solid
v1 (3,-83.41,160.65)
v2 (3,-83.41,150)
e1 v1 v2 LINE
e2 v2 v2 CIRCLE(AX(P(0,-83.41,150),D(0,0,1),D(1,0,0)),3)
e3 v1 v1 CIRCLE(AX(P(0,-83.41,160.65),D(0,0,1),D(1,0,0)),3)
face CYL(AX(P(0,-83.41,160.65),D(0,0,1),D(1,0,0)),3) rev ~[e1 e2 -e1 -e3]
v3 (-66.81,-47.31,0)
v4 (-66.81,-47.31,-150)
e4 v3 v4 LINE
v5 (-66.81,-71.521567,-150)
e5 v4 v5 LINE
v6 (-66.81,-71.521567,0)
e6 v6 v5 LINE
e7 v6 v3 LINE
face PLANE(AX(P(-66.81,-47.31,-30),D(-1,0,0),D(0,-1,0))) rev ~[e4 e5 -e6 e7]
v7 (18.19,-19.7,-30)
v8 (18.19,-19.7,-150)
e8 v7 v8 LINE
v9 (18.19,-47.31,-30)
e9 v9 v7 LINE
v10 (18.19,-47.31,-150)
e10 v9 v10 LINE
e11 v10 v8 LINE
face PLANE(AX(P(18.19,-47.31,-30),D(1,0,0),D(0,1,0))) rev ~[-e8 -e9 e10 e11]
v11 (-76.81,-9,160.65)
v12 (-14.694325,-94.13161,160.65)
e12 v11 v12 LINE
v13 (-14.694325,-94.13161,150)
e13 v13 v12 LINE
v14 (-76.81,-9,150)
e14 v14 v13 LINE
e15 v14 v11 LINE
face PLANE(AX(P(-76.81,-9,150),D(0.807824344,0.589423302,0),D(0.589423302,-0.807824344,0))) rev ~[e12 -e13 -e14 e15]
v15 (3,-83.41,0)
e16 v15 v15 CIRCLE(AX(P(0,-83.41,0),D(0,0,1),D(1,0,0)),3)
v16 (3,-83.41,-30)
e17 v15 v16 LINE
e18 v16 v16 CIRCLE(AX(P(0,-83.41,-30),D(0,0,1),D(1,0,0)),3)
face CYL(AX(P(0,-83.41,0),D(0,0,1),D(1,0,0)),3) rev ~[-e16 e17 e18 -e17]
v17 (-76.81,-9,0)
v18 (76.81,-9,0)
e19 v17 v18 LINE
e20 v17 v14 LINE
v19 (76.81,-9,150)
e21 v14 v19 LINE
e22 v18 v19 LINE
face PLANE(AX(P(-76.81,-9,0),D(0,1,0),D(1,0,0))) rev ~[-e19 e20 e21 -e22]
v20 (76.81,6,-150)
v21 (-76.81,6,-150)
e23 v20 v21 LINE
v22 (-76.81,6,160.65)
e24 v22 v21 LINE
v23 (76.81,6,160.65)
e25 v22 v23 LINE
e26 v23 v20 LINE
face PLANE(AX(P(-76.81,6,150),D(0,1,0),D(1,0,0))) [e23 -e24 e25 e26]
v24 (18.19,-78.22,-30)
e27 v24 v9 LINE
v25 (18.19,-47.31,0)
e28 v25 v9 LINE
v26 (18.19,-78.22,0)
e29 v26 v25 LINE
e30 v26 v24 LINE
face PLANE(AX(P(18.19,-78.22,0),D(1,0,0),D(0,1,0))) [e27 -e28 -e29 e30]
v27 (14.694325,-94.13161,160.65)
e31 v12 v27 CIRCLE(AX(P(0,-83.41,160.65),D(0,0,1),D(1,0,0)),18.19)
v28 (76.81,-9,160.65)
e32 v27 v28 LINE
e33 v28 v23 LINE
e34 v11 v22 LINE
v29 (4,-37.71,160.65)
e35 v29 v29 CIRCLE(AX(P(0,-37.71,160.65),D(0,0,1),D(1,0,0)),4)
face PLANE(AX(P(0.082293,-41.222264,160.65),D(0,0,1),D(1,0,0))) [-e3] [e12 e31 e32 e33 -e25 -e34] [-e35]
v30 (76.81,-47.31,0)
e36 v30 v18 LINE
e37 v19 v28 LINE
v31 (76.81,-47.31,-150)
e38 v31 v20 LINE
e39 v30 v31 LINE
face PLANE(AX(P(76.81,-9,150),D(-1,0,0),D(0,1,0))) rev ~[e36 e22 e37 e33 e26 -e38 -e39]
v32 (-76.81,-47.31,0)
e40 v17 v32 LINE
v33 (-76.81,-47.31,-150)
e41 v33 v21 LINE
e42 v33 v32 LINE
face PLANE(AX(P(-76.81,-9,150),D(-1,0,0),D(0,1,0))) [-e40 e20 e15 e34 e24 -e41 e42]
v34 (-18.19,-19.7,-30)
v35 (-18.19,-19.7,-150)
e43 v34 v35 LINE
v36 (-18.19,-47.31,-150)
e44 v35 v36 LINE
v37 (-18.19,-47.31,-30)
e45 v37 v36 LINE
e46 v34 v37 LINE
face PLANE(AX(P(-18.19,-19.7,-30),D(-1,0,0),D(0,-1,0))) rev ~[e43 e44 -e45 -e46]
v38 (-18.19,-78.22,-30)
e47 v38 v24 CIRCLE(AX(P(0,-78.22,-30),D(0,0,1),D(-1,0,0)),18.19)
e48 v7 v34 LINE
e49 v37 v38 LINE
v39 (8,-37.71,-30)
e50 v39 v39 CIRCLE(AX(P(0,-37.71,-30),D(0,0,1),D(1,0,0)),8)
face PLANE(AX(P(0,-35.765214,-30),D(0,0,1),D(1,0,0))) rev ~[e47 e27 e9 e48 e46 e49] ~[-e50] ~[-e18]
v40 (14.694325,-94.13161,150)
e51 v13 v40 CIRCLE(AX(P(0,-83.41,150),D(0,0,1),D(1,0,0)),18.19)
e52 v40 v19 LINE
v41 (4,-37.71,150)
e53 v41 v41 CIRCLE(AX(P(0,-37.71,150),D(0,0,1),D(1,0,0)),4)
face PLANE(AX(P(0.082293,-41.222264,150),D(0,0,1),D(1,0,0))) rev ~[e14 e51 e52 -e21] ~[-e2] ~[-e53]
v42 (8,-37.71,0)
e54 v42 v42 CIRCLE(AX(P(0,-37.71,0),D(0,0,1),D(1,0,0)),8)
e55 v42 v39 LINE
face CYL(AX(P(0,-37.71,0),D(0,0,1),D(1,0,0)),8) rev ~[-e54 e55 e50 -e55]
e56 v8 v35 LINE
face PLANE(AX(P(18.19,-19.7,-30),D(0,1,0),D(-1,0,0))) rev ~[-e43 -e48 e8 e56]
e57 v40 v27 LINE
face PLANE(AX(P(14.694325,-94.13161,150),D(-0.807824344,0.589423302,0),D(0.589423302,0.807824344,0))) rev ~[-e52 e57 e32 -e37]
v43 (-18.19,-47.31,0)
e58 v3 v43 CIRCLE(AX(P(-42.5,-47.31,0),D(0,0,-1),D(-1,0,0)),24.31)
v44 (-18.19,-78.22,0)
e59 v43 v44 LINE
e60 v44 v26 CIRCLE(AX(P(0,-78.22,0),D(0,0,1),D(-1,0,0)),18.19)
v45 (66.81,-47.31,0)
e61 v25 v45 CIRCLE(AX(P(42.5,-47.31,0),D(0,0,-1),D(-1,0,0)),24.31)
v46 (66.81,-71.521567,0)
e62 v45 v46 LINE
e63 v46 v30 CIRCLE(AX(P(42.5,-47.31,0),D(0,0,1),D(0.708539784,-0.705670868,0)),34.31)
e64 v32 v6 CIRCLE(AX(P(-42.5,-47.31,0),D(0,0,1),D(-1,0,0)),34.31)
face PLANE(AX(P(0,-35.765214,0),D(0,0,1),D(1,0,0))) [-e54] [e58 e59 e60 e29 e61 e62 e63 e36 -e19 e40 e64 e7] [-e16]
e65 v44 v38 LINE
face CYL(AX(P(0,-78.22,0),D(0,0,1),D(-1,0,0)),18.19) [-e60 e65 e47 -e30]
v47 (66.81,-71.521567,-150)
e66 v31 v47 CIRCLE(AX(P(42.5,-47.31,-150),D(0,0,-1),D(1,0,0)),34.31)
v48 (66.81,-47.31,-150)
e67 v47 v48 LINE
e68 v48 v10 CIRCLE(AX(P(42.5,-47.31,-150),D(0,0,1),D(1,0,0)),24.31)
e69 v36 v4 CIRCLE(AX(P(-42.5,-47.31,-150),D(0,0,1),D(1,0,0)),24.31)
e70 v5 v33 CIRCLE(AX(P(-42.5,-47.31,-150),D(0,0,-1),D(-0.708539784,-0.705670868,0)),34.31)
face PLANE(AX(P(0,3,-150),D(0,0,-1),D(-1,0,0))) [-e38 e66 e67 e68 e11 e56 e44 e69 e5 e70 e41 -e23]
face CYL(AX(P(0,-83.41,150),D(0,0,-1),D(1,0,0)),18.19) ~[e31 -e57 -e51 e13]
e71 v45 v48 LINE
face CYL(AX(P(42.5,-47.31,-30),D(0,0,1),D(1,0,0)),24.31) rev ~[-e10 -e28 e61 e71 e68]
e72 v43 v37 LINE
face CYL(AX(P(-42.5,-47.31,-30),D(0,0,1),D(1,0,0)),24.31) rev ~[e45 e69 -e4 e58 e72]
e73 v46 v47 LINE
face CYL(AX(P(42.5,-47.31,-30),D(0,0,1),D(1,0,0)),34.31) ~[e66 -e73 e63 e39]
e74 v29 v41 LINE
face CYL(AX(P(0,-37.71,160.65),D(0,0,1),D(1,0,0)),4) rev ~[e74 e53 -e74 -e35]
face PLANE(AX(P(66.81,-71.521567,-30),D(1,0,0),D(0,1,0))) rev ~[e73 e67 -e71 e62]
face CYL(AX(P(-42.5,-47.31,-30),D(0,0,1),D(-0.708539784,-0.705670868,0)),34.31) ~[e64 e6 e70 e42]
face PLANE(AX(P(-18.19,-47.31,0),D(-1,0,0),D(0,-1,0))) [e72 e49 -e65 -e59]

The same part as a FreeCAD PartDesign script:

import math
import FreeCAD as App
import Part
import Sketcher

V = App.Vector
Q = App.Units.Quantity

doc = App.newDocument("Part")
body = doc.addObject("PartDesign::Body", "Body")

# Sketch on XY plane
sketch1 = body.newObject("Sketcher::SketchObject", "Sketch")
sketch1.AttachmentSupport = (doc.getObject("XY_Plane"), [""])
sketch1.MapMode = "FlatFace"
sketch1.addGeometry([
    Part.LineSegment(V(-18.2, -47.3, 0), V(-18.2, -78.2, 0)),  # 0
    Part.ArcOfCircle(Part.Circle(V(0, -78.2, 0), V(0, 0, 1), 18.2), math.radians(180), math.radians(360)),  # 1
    Part.LineSegment(V(18.2, -78.2, 0), V(18.2, -47.3, 0)),  # 2
    Part.ArcOfCircle(Part.Circle(V(42.5, -47.3, 0), V(0, 0, 1), 24.3), math.radians(0), math.radians(180)),  # 3
    Part.LineSegment(V(66.8, -47.3, 0), V(66.8, -71.5, 0)),  # 4
    Part.ArcOfCircle(Part.Circle(V(42.5, -47.3, 0), V(0, 0, 1), 34.3), math.radians(-45), math.radians(0)),  # 5
    Part.LineSegment(V(76.8, -47.3, 0), V(76.8, 0, 0)),  # 6
    Part.LineSegment(V(76.8, 0, 0), V(-76.8, 0, 0)),  # 7
    Part.LineSegment(V(-76.8, 0, 0), V(-76.8, -47.3, 0)),  # 8
    Part.ArcOfCircle(Part.Circle(V(-42.5, -47.3, 0), V(0, 0, 1), 34.3), math.radians(180), math.radians(225)),  # 9
    Part.LineSegment(V(-66.8, -71.5, 0), V(-66.8, -47.3, 0)),  # 10
    Part.ArcOfCircle(Part.Circle(V(-42.5, -47.3, 0), V(0, 0, 1), 24.3), math.radians(0), math.radians(180)),  # 11
    Part.Circle(V(0, -83.4, 0), V(0, 0, 1), 3),  # 12
    Part.Circle(V(0, -37.7, 0), V(0, 0, 1), 8),  # 13
], False)
sketch1.addConstraint([
    Sketcher.Constraint("Tangent", 0, 2, 1, 1),
    Sketcher.Constraint("Tangent", 1, 2, 2, 1),
    Sketcher.Constraint("Tangent", 2, 2, 3, 2),
    Sketcher.Constraint("Tangent", 3, 1, 4, 1),
    Sketcher.Constraint("Coincident", 4, 2, 5, 1),
    Sketcher.Constraint("Tangent", 5, 2, 6, 1),
    Sketcher.Constraint("Coincident", 6, 2, 7, 1),
    Sketcher.Constraint("Coincident", 7, 2, 8, 1),
    Sketcher.Constraint("Tangent", 8, 2, 9, 1),
    Sketcher.Constraint("Coincident", 9, 2, 10, 1),
    Sketcher.Constraint("Tangent", 10, 2, 11, 2),
    Sketcher.Constraint("Tangent", 11, 1, 0, 1),
    Sketcher.Constraint("Vertical", 0),
    Sketcher.Constraint("Vertical", 2),
    Sketcher.Constraint("Vertical", 4),
    Sketcher.Constraint("Vertical", 6),
    Sketcher.Constraint("Horizontal", 7),
    Sketcher.Constraint("Vertical", 8),
    Sketcher.Constraint("Vertical", 10),
    Sketcher.Constraint("Coincident", 5, 3, 3, 3),
    Sketcher.Constraint("Coincident", 11, 3, 9, 3),
    Sketcher.Constraint("Equal", 5, 9),
    Sketcher.Constraint("Equal", 3, 11),
    Sketcher.Constraint("Symmetric", 6, 2, 7, 2, -1, 1),
    Sketcher.Constraint("PointOnObject", 12, 3, -2),
    Sketcher.Constraint("PointOnObject", 13, 3, -2),
    Sketcher.Constraint("Horizontal", 5, 3, 9, 3),
    Sketcher.Constraint("Diameter", 12, Q("6 mm")),
    Sketcher.Constraint("Diameter", 13, Q("16 mm")),
    Sketcher.Constraint("Radius", 1, Q("18.19 mm")),
    Sketcher.Constraint("Radius", 3, Q("24.31 mm")),
    Sketcher.Constraint("Radius", 5, Q("34.31 mm")),
    Sketcher.Constraint("DistanceY", 0, 2, 0, 1, Q("30.91 mm")),
    Sketcher.Constraint("DistanceY", 6, 1, 6, 2, Q("47.31 mm")),
    Sketcher.Constraint("DistanceY", 12, 3, 3, 3, Q("36.1 mm")),
    Sketcher.Constraint("DistanceY", 3, 3, 13, 3, Q("9.6 mm")),
])
pad1 = body.newObject("PartDesign::Pad", "Pad")
pad1.Profile = sketch1
pad1.Length = 30
pad1.Reversed = True

# Sketch on XY plane
sketch2 = body.newObject("Sketcher::SketchObject", "Sketch001")
sketch2.AttachmentSupport = (doc.getObject("XY_Plane"), [""])
sketch2.MapMode = "FlatFace"
sketch2.AttachmentOffset = App.Placement(V(0, 0, -30), App.Rotation())
sketch2.addGeometry([
    Part.LineSegment(V(77, 0, 0), V(77, -47, 0)),  # 0
    Part.ArcOfCircle(Part.Circle(V(43, -47, 0), V(0, 0, 1), 34), math.radians(-45), math.radians(0)),  # 1
    Part.LineSegment(V(67, -72, 0), V(67, -47, 0)),  # 2
    Part.ArcOfCircle(Part.Circle(V(42, -47, 0), V(0, 0, 1), 24), math.radians(0), math.radians(180)),  # 3
    Part.LineSegment(V(18, -47, 0), V(18, -20, 0)),  # 4
    Part.LineSegment(V(18, -20, 0), V(-18, -20, 0)),  # 5
    Part.LineSegment(V(-18, -20, 0), V(-18, -47, 0)),  # 6
    Part.ArcOfCircle(Part.Circle(V(-42, -47, 0), V(0, 0, 1), 24), math.radians(0), math.radians(180)),  # 7
    Part.LineSegment(V(-67, -47, 0), V(-67, -72, 0)),  # 8
    Part.ArcOfCircle(Part.Circle(V(-43, -47, 0), V(0, 0, 1), 34), math.radians(180), math.radians(225)),  # 9
    Part.LineSegment(V(-77, -47, 0), V(-77, 0, 0)),  # 10
    Part.LineSegment(V(-77, 0, 0), V(77, 0, 0)),  # 11
], False)
sketch2.addConstraint([
    Sketcher.Constraint("Tangent", 0, 2, 1, 2),
    Sketcher.Constraint("Coincident", 1, 1, 2, 1),
    Sketcher.Constraint("Tangent", 2, 2, 3, 1),
    Sketcher.Constraint("Tangent", 3, 2, 4, 1),
    Sketcher.Constraint("Coincident", 4, 2, 5, 1),
    Sketcher.Constraint("Coincident", 5, 2, 6, 1),
    Sketcher.Constraint("Tangent", 6, 2, 7, 1),
    Sketcher.Constraint("Tangent", 7, 2, 8, 1),
    Sketcher.Constraint("Coincident", 8, 2, 9, 2),
    Sketcher.Constraint("Tangent", 9, 1, 10, 1),
    Sketcher.Constraint("Coincident", 10, 2, 11, 1),
    Sketcher.Constraint("Coincident", 11, 2, 0, 1),
    Sketcher.Constraint("Vertical", 0),
    Sketcher.Constraint("Vertical", 2),
    Sketcher.Constraint("Vertical", 4),
    Sketcher.Constraint("Horizontal", 5),
    Sketcher.Constraint("Vertical", 6),
    Sketcher.Constraint("Vertical", 8),
    Sketcher.Constraint("Vertical", 10),
    Sketcher.Constraint("Horizontal", 11),
    Sketcher.Constraint("Coincident", 3, 3, 1, 3),
    Sketcher.Constraint("Coincident", 9, 3, 7, 3),
    Sketcher.Constraint("Equal", 3, 7),
    Sketcher.Constraint("Equal", 1, 9),
    Sketcher.Constraint("Symmetric", 10, 2, 11, 2, -1, 1),
    Sketcher.Constraint("Horizontal", 3, 3, 7, 3),
    Sketcher.Constraint("Radius", 1, Q("34.31 mm")),
    Sketcher.Constraint("Radius", 3, Q("24.31 mm")),
    Sketcher.Constraint("DistanceX", 7, 3, 3, 3, Q("85 mm")),
    Sketcher.Constraint("DistanceY", 0, 2, 0, 1, Q("47.31 mm")),
    Sketcher.Constraint("DistanceY", 4, 1, 4, 2, Q("27.61 mm")),
])
pad2 = body.newObject("PartDesign::Pad", "Pad001")
pad2.Profile = sketch2
pad2.Length = 120
pad2.Reversed = True

# Sketch on XY plane
sketch3 = body.newObject("Sketcher::SketchObject", "Sketch002")
sketch3.AttachmentSupport = (doc.getObject("XY_Plane"), [""])
sketch3.MapMode = "FlatFace"
sketch3.addGeometry([
    Part.LineSegment(V(-77, -9, 0), V(77, -9, 0)),
    Part.LineSegment(V(77, -9, 0), V(77, 6, 0)),
    Part.LineSegment(V(77, 6, 0), V(-77, 6, 0)),
    Part.LineSegment(V(-77, 6, 0), V(-77, -9, 0)),
], False)
sketch3.addConstraint([
    Sketcher.Constraint("Coincident", 0, 2, 1, 1),
    Sketcher.Constraint("Coincident", 1, 2, 2, 1),
    Sketcher.Constraint("Coincident", 2, 2, 3, 1),
    Sketcher.Constraint("Coincident", 3, 2, 0, 1),
    Sketcher.Constraint("Horizontal", 0),
    Sketcher.Constraint("Vertical", 1),
    Sketcher.Constraint("Horizontal", 2),
    Sketcher.Constraint("Vertical", 3),
    Sketcher.Constraint("DistanceY", 1, 1, 1, 2, Q("15 mm")),
    Sketcher.Constraint("DistanceY", 0, 2, -1, 1, Q("9 mm")),
    Sketcher.Constraint("DistanceX", 0, 1, 0, 2, Q("153.62 mm")),
    Sketcher.Constraint("DistanceX", -1, 1, 0, 2, Q("76.81 mm")),
])
pad3 = body.newObject("PartDesign::Pad", "Pad002")
pad3.Profile = sketch3
pad3.Length = 150

# Sketch on XY plane
sketch4 = body.newObject("Sketcher::SketchObject", "Sketch003")
sketch4.AttachmentSupport = (doc.getObject("XY_Plane"), [""])
sketch4.MapMode = "FlatFace"
sketch4.addGeometry([
    Part.LineSegment(V(77, 6, 0), V(77, 0, 0)),
    Part.LineSegment(V(77, 0, 0), V(-77, 0, 0)),
    Part.LineSegment(V(-77, 0, 0), V(-77, 6, 0)),
    Part.LineSegment(V(-77, 6, 0), V(77, 6, 0)),
], False)
sketch4.addConstraint([
    Sketcher.Constraint("Coincident", 0, 2, 1, 1),
    Sketcher.Constraint("Coincident", 1, 2, 2, 1),
    Sketcher.Constraint("Coincident", 2, 2, 3, 1),
    Sketcher.Constraint("Coincident", 3, 2, 0, 1),
    Sketcher.Constraint("Vertical", 0),
    Sketcher.Constraint("Horizontal", 1),
    Sketcher.Constraint("Vertical", 2),
    Sketcher.Constraint("Horizontal", 3),
    Sketcher.Constraint("Symmetric", 0, 2, 1, 2, -1, 1),
    Sketcher.Constraint("DistanceY", 0, 2, 0, 1, Q("6 mm")),
    Sketcher.Constraint("DistanceX", 1, 2, 1, 1, Q("153.62 mm")),
])
pad4 = body.newObject("PartDesign::Pad", "Pad003")
pad4.Profile = sketch4
pad4.Length = 150
pad4.Reversed = True

# Sketch on XY plane
sketch5 = body.newObject("Sketcher::SketchObject", "Sketch004")
sketch5.AttachmentSupport = (doc.getObject("XY_Plane"), [""])
sketch5.MapMode = "FlatFace"
sketch5.AttachmentOffset = App.Placement(V(0, 0, 150), App.Rotation())
sketch5.addGeometry([
    Part.LineSegment(V(-77, -9, 0), V(-15, -94, 0)),  # 0
    Part.ArcOfCircle(Part.Circle(V(0, -83, 0), V(0, 0, 1), 18), math.radians(-144), math.radians(-36)),  # 1
    Part.LineSegment(V(15, -94, 0), V(77, -9, 0)),  # 2
    Part.LineSegment(V(77, -9, 0), V(77, 6, 0)),  # 3
    Part.LineSegment(V(77, 6, 0), V(-77, 6, 0)),  # 4
    Part.LineSegment(V(-77, 6, 0), V(-77, -9, 0)),  # 5
], False)
sketch5.addConstraint([
    Sketcher.Constraint("Tangent", 0, 2, 1, 1),
    Sketcher.Constraint("Tangent", 1, 2, 2, 1),
    Sketcher.Constraint("Coincident", 2, 2, 3, 1),
    Sketcher.Constraint("Coincident", 3, 2, 4, 1),
    Sketcher.Constraint("Coincident", 4, 2, 5, 1),
    Sketcher.Constraint("Coincident", 5, 2, 0, 1),
    Sketcher.Constraint("Vertical", 3),
    Sketcher.Constraint("Horizontal", 4),
    Sketcher.Constraint("Vertical", 5),
    Sketcher.Constraint("Symmetric", 0, 2, 1, 2, -2),
    Sketcher.Constraint("Horizontal", 2, 2, 5, 2),
    Sketcher.Constraint("DistanceY", 3, 1, 3, 2, Q("15 mm")),
    Sketcher.Constraint("Radius", 1, Q("18.19 mm")),
    Sketcher.Constraint("DistanceY", 2, 2, -1, 1, Q("9 mm")),
    Sketcher.Constraint("DistanceX", 4, 2, 4, 1, Q("153.62 mm")),
    Sketcher.Constraint("DistanceY", 1, 3, -1, 1, Q("83.41 mm")),
])
pad5 = body.newObject("PartDesign::Pad", "Pad004")
pad5.Profile = sketch5
pad5.Length = 10.65

# Sketch on XY plane
sketch6 = body.newObject("Sketcher::SketchObject", "Sketch005")
sketch6.AttachmentSupport = (doc.getObject("XY_Plane"), [""])
sketch6.MapMode = "FlatFace"
sketch6.AttachmentOffset = App.Placement(V(0, 0, 160.65), App.Rotation())
sketch6.addGeometry(Part.Circle(V(0, -83.4, 0), V(0, 0, 1), 3), False)
sketch6.addConstraint([
    Sketcher.Constraint("PointOnObject", 0, 3, -2),
    Sketcher.Constraint("Diameter", 0, Q("6 mm")),
    Sketcher.Constraint("DistanceY", 0, 3, -1, 1, Q("83.41 mm")),
])
pocket1 = body.newObject("PartDesign::Pocket", "Pocket")
pocket1.Profile = sketch6
pocket1.Type = "UpToFirst"

# Sketch on XY plane
sketch7 = body.newObject("Sketcher::SketchObject", "Sketch006")
sketch7.AttachmentSupport = (doc.getObject("XY_Plane"), [""])
sketch7.MapMode = "FlatFace"
sketch7.AttachmentOffset = App.Placement(V(0, 0, 160.65), App.Rotation())
sketch7.addGeometry(Part.Circle(V(0, -37.7, 0), V(0, 0, 1), 4), False)
sketch7.addConstraint([
    Sketcher.Constraint("PointOnObject", 0, 3, -2),
    Sketcher.Constraint("Diameter", 0, Q("8 mm")),
    Sketcher.Constraint("DistanceY", 0, 3, -1, 1, Q("37.71 mm")),
])
pocket2 = body.newObject("PartDesign::Pocket", "Pocket001")
pocket2.Profile = sketch7
pocket2.Type = "UpToFirst"

doc.recompute()
